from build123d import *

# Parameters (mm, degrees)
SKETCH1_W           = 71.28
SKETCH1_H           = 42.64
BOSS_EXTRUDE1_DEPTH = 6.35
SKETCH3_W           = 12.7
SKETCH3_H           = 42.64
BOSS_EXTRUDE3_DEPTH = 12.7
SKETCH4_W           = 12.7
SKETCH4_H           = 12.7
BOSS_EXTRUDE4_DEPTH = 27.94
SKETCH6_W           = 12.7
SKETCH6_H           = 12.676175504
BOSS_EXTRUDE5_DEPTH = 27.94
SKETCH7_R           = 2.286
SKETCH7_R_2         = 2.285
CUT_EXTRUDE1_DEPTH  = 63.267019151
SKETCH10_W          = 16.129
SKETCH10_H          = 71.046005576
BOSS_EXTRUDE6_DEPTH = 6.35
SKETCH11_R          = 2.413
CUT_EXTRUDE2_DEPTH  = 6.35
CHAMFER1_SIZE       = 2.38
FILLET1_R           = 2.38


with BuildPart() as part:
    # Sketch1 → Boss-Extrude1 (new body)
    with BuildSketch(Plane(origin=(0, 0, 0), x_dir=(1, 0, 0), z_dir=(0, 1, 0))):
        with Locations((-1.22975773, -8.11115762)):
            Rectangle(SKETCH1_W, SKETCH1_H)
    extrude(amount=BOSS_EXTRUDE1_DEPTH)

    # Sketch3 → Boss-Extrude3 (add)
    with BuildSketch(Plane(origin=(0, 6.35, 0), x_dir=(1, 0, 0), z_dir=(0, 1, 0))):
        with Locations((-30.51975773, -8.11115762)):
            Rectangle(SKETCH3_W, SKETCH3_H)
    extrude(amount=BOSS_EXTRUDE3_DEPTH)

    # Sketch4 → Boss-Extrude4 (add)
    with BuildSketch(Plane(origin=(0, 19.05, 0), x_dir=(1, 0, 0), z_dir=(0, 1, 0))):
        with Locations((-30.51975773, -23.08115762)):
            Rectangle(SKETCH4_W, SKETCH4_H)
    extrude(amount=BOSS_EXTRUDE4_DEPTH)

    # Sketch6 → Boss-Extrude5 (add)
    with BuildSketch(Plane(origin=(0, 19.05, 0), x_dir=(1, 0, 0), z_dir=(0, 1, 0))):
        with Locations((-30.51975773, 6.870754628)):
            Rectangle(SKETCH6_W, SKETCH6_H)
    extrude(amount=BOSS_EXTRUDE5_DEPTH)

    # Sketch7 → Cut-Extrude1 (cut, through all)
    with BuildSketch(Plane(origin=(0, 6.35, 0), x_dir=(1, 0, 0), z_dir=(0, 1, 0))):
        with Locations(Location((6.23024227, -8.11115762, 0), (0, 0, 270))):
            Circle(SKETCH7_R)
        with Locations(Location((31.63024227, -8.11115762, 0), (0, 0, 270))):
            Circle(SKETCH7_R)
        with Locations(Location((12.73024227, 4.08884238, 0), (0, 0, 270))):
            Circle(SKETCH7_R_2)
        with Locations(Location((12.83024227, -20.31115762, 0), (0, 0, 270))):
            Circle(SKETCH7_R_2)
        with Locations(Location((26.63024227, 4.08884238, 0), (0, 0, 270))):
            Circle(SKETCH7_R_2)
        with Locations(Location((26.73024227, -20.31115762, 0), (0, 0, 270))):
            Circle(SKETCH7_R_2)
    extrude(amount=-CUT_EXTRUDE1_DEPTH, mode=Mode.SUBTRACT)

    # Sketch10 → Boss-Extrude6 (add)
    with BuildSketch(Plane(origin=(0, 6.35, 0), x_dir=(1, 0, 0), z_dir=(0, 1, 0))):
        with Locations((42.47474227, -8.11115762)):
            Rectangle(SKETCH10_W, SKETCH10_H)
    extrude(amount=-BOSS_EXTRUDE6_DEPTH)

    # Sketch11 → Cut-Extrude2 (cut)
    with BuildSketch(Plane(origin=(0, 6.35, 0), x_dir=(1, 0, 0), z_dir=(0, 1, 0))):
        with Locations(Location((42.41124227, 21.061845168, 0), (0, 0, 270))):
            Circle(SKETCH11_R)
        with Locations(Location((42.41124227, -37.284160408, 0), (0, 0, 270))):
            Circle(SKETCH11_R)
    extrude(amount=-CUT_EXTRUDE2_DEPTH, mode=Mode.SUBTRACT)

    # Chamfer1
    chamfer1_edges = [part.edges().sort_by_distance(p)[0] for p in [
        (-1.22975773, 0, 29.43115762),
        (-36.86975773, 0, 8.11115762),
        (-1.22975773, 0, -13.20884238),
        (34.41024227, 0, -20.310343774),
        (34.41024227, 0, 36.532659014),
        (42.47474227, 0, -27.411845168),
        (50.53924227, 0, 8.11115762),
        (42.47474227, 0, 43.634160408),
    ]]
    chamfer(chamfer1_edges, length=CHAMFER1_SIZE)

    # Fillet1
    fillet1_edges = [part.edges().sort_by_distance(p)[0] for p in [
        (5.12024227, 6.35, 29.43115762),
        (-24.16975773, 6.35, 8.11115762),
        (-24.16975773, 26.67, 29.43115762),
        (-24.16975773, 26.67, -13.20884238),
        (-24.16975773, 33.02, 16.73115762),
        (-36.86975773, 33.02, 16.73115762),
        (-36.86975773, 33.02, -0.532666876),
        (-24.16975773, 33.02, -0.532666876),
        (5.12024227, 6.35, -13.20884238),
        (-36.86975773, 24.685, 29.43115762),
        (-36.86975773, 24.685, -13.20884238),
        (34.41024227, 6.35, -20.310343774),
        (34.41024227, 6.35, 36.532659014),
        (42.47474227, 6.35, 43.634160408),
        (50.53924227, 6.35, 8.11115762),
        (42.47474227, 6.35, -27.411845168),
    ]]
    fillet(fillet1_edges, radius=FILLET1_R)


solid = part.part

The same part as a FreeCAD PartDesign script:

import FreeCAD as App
import Part
import Sketcher
from FreeCAD import Vector
Q = App.Units.Quantity


def edges_at(feature, points):
    """Names of the edges that pass closest to the given points."""
    edges = feature.Shape.Edges
    near = lambda p: min(range(len(edges)), key=lambda i: edges[i].distToShape(Part.Vertex(*p))[0])
    return sorted({f"Edge{near(p) + 1}" for p in points})

doc = App.newDocument("Part")
body = doc.addObject("PartDesign::Body", "Body")

# Sketch on XZ plane
sketch1 = body.newObject("Sketcher::SketchObject", "Sketch")
sketch1.AttachmentSupport = (doc.getObject("XZ_Plane"), [""])
sketch1.MapMode = "FlatFace"
sketch1.addGeometry([
    Part.LineSegment(Vector(-36.869758, -13.208842, 0), Vector(-36.869758, 29.431158, 0)),
    Part.LineSegment(Vector(-36.869758, 29.431158, 0), Vector(34.410242, 29.431158, 0)),
    Part.LineSegment(Vector(34.410242, 29.431158, 0), Vector(34.410242, -13.208842, 0)),
    Part.LineSegment(Vector(34.410242, -13.208842, 0), Vector(-36.869758, -13.208842, 0)),
], False)
sketch1.addConstraint([
    Sketcher.Constraint("Coincident", 0, 2, 1, 1),
    Sketcher.Constraint("Coincident", 1, 2, 2, 1),
    Sketcher.Constraint("Coincident", 2, 2, 3, 1),
    Sketcher.Constraint("Coincident", 3, 2, 0, 1),
    Sketcher.Constraint("Vertical", 0),
    Sketcher.Constraint("Horizontal", 1),
    Sketcher.Constraint("Vertical", 2),
    Sketcher.Constraint("Horizontal", 3),
    Sketcher.Constraint("DistanceX", 1, 1, 1, 2, 71.28),
    Sketcher.Constraint("DistanceY", 0, 1, 0, 2, 42.64),
    Sketcher.Constraint("DistanceX", 0, 2, -1, 1, 36.869758),
    Sketcher.Constraint("DistanceY", -1, 1, 0, 2, 29.431158),
])
pad1 = body.newObject("PartDesign::Pad", "Pad")
pad1.Profile = sketch1
pad1.Length = Q("0.25 in")
pad1.Reversed = True

# Sketch on XZ plane
sketch2 = body.newObject("Sketcher::SketchObject", "Sketch001")
sketch2.AttachmentSupport = (doc.getObject("XZ_Plane"), [""])
sketch2.MapMode = "FlatFace"
sketch2.AttachmentOffset = App.Placement(Vector(0, 0, -0.25 * 25.4), App.Rotation())
sketch2.addGeometry([
    Part.LineSegment(Vector(-36.869758, -13.208842, 0), Vector(-36.869758, 29.431158, 0)),
    Part.LineSegment(Vector(-36.869758, 29.431158, 0), Vector(-24.169758, 29.431158, 0)),
    Part.LineSegment(Vector(-24.169758, 29.431158, 0), Vector(-24.169758, -13.208842, 0)),
    Part.LineSegment(Vector(-24.169758, -13.208842, 0), Vector(-36.869758, -13.208842, 0)),
], False)
sketch2.addConstraint([
    Sketcher.Constraint("Coincident", 0, 2, 1, 1),
    Sketcher.Constraint("Coincident", 1, 2, 2, 1),
    Sketcher.Constraint("Coincident", 2, 2, 3, 1),
    Sketcher.Constraint("Coincident", 3, 2, 0, 1),
    Sketcher.Constraint("Vertical", 0),
    Sketcher.Constraint("Horizontal", 1),
    Sketcher.Constraint("Vertical", 2),
    Sketcher.Constraint("Horizontal", 3),
    Sketcher.Constraint("DistanceX", 1, 1, 1, 2, Q("0.5 in")),
    Sketcher.Constraint("DistanceY", 0, 1, 0, 2, 42.64),
    Sketcher.Constraint("DistanceX", 0, 2, -1, 1, 36.869758),
    Sketcher.Constraint("DistanceY", -1, 1, 0, 2, 29.431158),
])
pad2 = body.newObject("PartDesign::Pad", "Pad001")
pad2.Profile = sketch2
pad2.Length = Q("0.5 in")
pad2.Reversed = True

# Sketch on XZ plane
sketch3 = body.newObject("Sketcher::SketchObject", "Sketch002")
sketch3.AttachmentSupport = (doc.getObject("XZ_Plane"), [""])
sketch3.MapMode = "FlatFace"
sketch3.AttachmentOffset = App.Placement(Vector(0, 0, -0.75 * 25.4), App.Rotation())
sketch3.addGeometry([
    Part.LineSegment(Vector(-36.869758, 16.731158, 0), Vector(-36.869758, 29.431158, 0)),
    Part.LineSegment(Vector(-36.869758, 29.431158, 0), Vector(-24.169758, 29.431158, 0)),
    Part.LineSegment(Vector(-24.169758, 29.431158, 0), Vector(-24.169758, 16.731158, 0)),
    Part.LineSegment(Vector(-24.169758, 16.731158, 0), Vector(-36.869758, 16.731158, 0)),
], False)
sketch3.addConstraint([
    Sketcher.Constraint("Coincident", 0, 2, 1, 1),
    Sketcher.Constraint("Coincident", 1, 2, 2, 1),
    Sketcher.Constraint("Coincident", 2, 2, 3, 1),
    Sketcher.Constraint("Coincident", 3, 2, 0, 1),
    Sketcher.Constraint("Vertical", 0),
    Sketcher.Constraint("Horizontal", 1),
    Sketcher.Constraint("Vertical", 2),
    Sketcher.Constraint("Horizontal", 3),
    Sketcher.Constraint("Equal", 3, 0),
    Sketcher.Constraint("DistanceX", 1, 1, 1, 2, Q("0.5 in")),
    Sketcher.Constraint("DistanceX", 0, 2, -1, 1, 36.869758),
    Sketcher.Constraint("DistanceY", -1, 1, 0, 2, 29.431158),
])
pad3 = body.newObject("PartDesign::Pad", "Pad002")
pad3.Profile = sketch3
pad3.Length = Q("1.1 in")
pad3.Reversed = True

# Sketch on XZ plane
sketch4 = body.newObject("Sketcher::SketchObject", "Sketch003")
sketch4.AttachmentSupport = (doc.getObject("XZ_Plane"), [""])
sketch4.MapMode = "FlatFace"
sketch4.AttachmentOffset = App.Placement(Vector(0, 0, -0.75 * 25.4), App.Rotation())
sketch4.addGeometry([
    Part.LineSegment(Vector(-36.869758, -13.208842, 0), Vector(-36.869758, -0.532667, 0)),
    Part.LineSegment(Vector(-36.869758, -0.532667, 0), Vector(-24.169758, -0.532667, 0)),
    Part.LineSegment(Vector(-24.169758, -0.532667, 0), Vector(-24.169758, -13.208842, 0)),
    Part.LineSegment(Vector(-24.169758, -13.208842, 0), Vector(-36.869758, -13.208842, 0)),
], False)
sketch4.addConstraint([
    Sketcher.Constraint("Coincident", 0, 2, 1, 1),
    Sketcher.Constraint("Coincident", 1, 2, 2, 1),
    Sketcher.Constraint("Coincident", 2, 2, 3, 1),
    Sketcher.Constraint("Coincident", 3, 2, 0, 1),
    Sketcher.Constraint("Vertical", 0),
    Sketcher.Constraint("Horizontal", 1),
    Sketcher.Constraint("Vertical", 2),
    Sketcher.Constraint("Horizontal", 3),
    Sketcher.Constraint("DistanceX", 1, 1, 1, 2, Q("0.5 in")),
    Sketcher.Constraint("DistanceY", 0, 1, 0, 2, 12.676176),
    Sketcher.Constraint("DistanceX", 0, 2, -1, 1, 36.869758),
    Sketcher.Constraint("DistanceY", 0, 2, -1, 1, 0.532667),
])
pad4 = body.newObject("PartDesign::Pad", "Pad003")
pad4.Profile = sketch4
pad4.Length = Q("1.1 in")
pad4.Reversed = True

# Sketch on XZ plane
sketch5 = body.newObject("Sketcher::SketchObject", "Sketch004")
sketch5.AttachmentSupport = (doc.getObject("XZ_Plane"), [""])
sketch5.MapMode = "FlatFace"
sketch5.AttachmentOffset = App.Placement(Vector(0, 0, -0.25 * 25.4), App.Rotation())
sketch5.addGeometry([
    Part.Circle(Vector(6.230242, 8.111158, 0), Vector(0, 0, 1), 2.286),  # 0
    Part.Circle(Vector(31.630242, 8.111158, 0), Vector(0, 0, 1), 2.286),  # 1
    Part.Circle(Vector(12.730242, -4.088842, 0), Vector(0, 0, 1), 2.285),  # 2
    Part.Circle(Vector(12.830242, 20.311158, 0), Vector(0, 0, 1), 2.285),  # 3
    Part.Circle(Vector(26.630242, -4.088842, 0), Vector(0, 0, 1), 2.285),  # 4
    Part.Circle(Vector(26.730242, 20.311158, 0), Vector(0, 0, 1), 2.285),  # 5
], False)
sketch5.addConstraint([
    Sketcher.Constraint("Equal", 0, 1),
    Sketcher.Constraint("Equal", 2, 3),
    Sketcher.Constraint("Equal", 3, 4),
    Sketcher.Constraint("Equal", 4, 5),
    Sketcher.Constraint("Horizontal", 0, 3, 1, 3),
    Sketcher.Constraint("Horizontal", 2, 3, 4, 3),
    Sketcher.Constraint("Horizontal", 3, 3, 5, 3),
    Sketcher.Constraint("Diameter", 0, Q("0.18 in")),
    Sketcher.Constraint("DistanceX", 0, 3, 1, 3, Q("1 in")),
    Sketcher.Constraint("Diameter", 2, 4.57),
    Sketcher.Constraint("DistanceX", 0, 3, 2, 3, 6.5),
    Sketcher.Constraint("DistanceY", 2, 3, 0, 3, 12.2),
    Sketcher.Constraint("DistanceX", 0, 3, 3, 3, 6.6),
    Sketcher.Constraint("DistanceY", 0, 3, 3, 3, 12.2),
    Sketcher.Constraint("DistanceX", 4, 3, 1, 3, 5.0),
    Sketcher.Constraint("DistanceX", 5, 3, 1, 3, 4.9),
    Sketcher.Constraint("DistanceX", -1, 1, 0, 3, 6.230242),
    Sketcher.Constraint("DistanceY", -1, 1, 0, 3, 8.111158),
])
pocket1 = body.newObject("PartDesign::Pocket", "Pocket")
pocket1.Profile = sketch5
pocket1.Type = "ThroughAll"
pocket1.Reversed = True

# Sketch on XZ plane
sketch6 = body.newObject("Sketcher::SketchObject", "Sketch005")
sketch6.AttachmentSupport = (doc.getObject("XZ_Plane"), [""])
sketch6.MapMode = "FlatFace"
sketch6.AttachmentOffset = App.Placement(Vector(0, 0, -0.25 * 25.4), App.Rotation())
sketch6.addGeometry([
    Part.LineSegment(Vector(34.410242, -27.411845, 0), Vector(34.410242, 43.63416, 0)),
    Part.LineSegment(Vector(34.410242, 43.63416, 0), Vector(50.539242, 43.63416, 0)),
    Part.LineSegment(Vector(50.539242, 43.63416, 0), Vector(50.539242, -27.411845, 0)),
    Part.LineSegment(Vector(50.539242, -27.411845, 0), Vector(34.410242, -27.411845, 0)),
], False)
sketch6.addConstraint([
    Sketcher.Constraint("Coincident", 0, 2, 1, 1),
    Sketcher.Constraint("Coincident", 1, 2, 2, 1),
    Sketcher.Constraint("Coincident", 2, 2, 3, 1),
    Sketcher.Constraint("Coincident", 3, 2, 0, 1),
    Sketcher.Constraint("Vertical", 0),
    Sketcher.Constraint("Horizontal", 1),
    Sketcher.Constraint("Vertical", 2),
    Sketcher.Constraint("Horizontal", 3),
    Sketcher.Constraint("DistanceX", 1, 1, 1, 2, Q("0.635 in")),
    Sketcher.Constraint("DistanceY", 0, 1, 0, 2, 71.046006),
    Sketcher.Constraint("DistanceY", -1, 1, 0, 2, 43.63416),
    Sketcher.Constraint("DistanceX", -1, 1, 0, 2, 34.410242),
])
pad5 = body.newObject("PartDesign::Pad", "Pad004")
pad5.Profile = sketch6
pad5.Length = Q("0.25 in")

# Sketch on XZ plane
sketch7 = body.newObject("Sketcher::SketchObject", "Sketch006")
sketch7.AttachmentSupport = (doc.getObject("XZ_Plane"), [""])
sketch7.MapMode = "FlatFace"
sketch7.AttachmentOffset = App.Placement(Vector(0, 0, -0.25 * 25.4), App.Rotation())
sketch7.addGeometry([
    Part.Circle(Vector(42.411242, -21.061845, 0), Vector(0, 0, 1), 2.413),
    Part.Circle(Vector(42.411242, 37.28416, 0), Vector(0, 0, 1), 2.413),
], False)
sketch7.addConstraint([
    Sketcher.Constraint("Equal", 0, 1),
    Sketcher.Constraint("Vertical", 0, 3, 1, 3),
    Sketcher.Constraint("Diameter", 0, Q("0.19 in")),
    Sketcher.Constraint("DistanceY", -1, 1, 1, 3, 37.28416),
    Sketcher.Constraint("DistanceX", -1, 1, 0, 3, 42.411242),
    Sketcher.Constraint("DistanceY", 0, 3, -1, 1, 21.061845),
])
pocket2 = body.newObject("PartDesign::Pocket", "Pocket001")
pocket2.Profile = sketch7
pocket2.Length = Q("0.25 in")
pocket2.Reversed = True
doc.recompute()

chamfer = body.newObject("PartDesign::Chamfer", "Chamfer")
chamfer.Base = (pocket2, edges_at(pocket2, [
    (-1.23, 0, 29.431),
    (-36.87, 0, 8.111),
    (-1.23, 0, -13.209),
    (34.41, 0, -20.31),
    (34.41, 0, 36.533),
    (42.475, 0, -27.412),
    (50.539, 0, 8.111),
    (42.475, 0, 43.634),
]))
chamfer.Size = 2.38
doc.recompute()

fillet = body.newObject("PartDesign::Fillet", "Fillet")
fillet.Base = (chamfer, edges_at(chamfer, [
    (5.12, 6.35, 29.431),
    (-24.17, 6.35, 8.111),
    (-24.17, 26.67, 29.431),
    (-24.17, 26.67, -13.209),
    (-24.17, 33.02, 16.731),
    (-36.87, 33.02, 16.731),
    (-36.87, 33.02, -0.533),
    (-24.17, 33.02, -0.533),
    (5.12, 6.35, -13.209),
    (-36.87, 24.685, 29.431),
    (-36.87, 24.685, -13.209),
    (34.41, 6.35, -20.31),
    (34.41, 6.35, 36.533),
    (42.475, 6.35, 43.634),
    (50.539, 6.35, 8.111),
    (42.475, 6.35, -27.412),
]))
fillet.Radius = 2.38

doc.recompute()
